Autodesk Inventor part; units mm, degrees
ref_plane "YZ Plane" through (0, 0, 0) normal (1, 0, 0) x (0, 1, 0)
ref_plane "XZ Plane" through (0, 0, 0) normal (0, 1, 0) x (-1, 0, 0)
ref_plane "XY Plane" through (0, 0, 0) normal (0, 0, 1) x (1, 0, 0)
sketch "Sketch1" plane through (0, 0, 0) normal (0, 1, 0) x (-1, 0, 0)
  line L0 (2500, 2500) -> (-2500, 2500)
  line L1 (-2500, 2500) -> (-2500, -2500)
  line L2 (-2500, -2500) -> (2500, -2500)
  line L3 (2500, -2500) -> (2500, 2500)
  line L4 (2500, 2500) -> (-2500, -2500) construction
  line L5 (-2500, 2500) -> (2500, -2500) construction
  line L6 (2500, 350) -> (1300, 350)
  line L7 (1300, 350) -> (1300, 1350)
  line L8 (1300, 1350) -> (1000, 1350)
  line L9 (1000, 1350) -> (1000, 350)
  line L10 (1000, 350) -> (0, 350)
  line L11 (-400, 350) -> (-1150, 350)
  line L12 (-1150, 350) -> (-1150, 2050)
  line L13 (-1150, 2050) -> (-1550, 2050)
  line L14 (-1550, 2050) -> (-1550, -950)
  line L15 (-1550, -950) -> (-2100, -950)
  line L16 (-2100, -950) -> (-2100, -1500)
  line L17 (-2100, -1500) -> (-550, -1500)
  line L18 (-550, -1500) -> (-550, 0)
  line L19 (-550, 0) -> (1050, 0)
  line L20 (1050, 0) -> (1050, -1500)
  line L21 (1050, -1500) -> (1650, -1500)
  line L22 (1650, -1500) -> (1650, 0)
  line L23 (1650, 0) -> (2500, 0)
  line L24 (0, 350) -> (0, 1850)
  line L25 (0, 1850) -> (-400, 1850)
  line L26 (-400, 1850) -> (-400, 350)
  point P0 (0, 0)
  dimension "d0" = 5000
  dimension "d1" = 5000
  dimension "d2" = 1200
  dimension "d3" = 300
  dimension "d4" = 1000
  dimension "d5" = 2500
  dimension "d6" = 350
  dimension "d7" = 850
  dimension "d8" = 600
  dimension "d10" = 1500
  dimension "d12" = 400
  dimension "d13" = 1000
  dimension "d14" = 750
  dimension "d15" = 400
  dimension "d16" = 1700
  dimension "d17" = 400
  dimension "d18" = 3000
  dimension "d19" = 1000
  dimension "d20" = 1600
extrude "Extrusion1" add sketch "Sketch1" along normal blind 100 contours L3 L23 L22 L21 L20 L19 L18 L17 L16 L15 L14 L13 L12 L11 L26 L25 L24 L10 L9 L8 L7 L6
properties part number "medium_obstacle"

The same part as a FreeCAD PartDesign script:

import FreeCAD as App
import Part
import Sketcher
from FreeCAD import Vector
Q = App.Units.Quantity


def add_polygon(sketch, points):
    """Adds a closed chain of lines whose ends are joined by coincident constraints."""
    first, n = sketch.GeometryCount, len(points)
    for a, b in zip(points, points[1:] + points[:1]):
        sketch.addGeometry(Part.LineSegment(App.Vector(*a, 0), App.Vector(*b, 0)), False)
    for i in range(n):
        sketch.addConstraint(Sketcher.Constraint("Coincident", first + i, 2, first + (i + 1) % n, 1))

doc = App.newDocument("Part")
params = doc.addObject("Spreadsheet::Sheet", "Params")
for row, (alias, value) in enumerate([
    ("sketch1_width", "1200 mm"),
    ("sketch1_width2", "300 mm"),
    ("sketch1_width3", "1000 mm"),
    ("sketch1_width4", "400 mm"),
    ("sketch1_width5", "750 mm"),
    ("pad1_length", "100 mm"),
], start=1):
    params.set(f"A{row}", alias)
    params.set(f"B{row}", "=" + value)
    params.setAlias(f"B{row}", alias)

body = doc.addObject("PartDesign::Body", "Body")

sketch1 = body.newObject("Sketcher::SketchObject", "Sketch")
sketch1.AttachmentSupport = (doc.getObject("XZ_Plane"), [""])
sketch1.MapMode = "FlatFace"
add_polygon(sketch1, [(-2500, 0), (-2500, 350), (-1300, 350), (-1300, 1350), (-1000, 1350), (-1000, 350), (0, 350), (0, 1850), (400, 1850), (400, 350), (1150, 350), (1150, 2050), (1550, 2050), (1550, -950), (2100, -950), (2100, -1500), (550, -1500), (550, 0), (-1050, 0), (-1050, -1500), (-1650, -1500), (-1650, 0)])
sketch1.addConstraint([
    Sketcher.Constraint("Vertical", 0),
    Sketcher.Constraint("Horizontal", 1),
    Sketcher.Constraint("Vertical", 2),
    Sketcher.Constraint("Horizontal", 3),
    Sketcher.Constraint("Vertical", 4),
    Sketcher.Constraint("Horizontal", 5),
    Sketcher.Constraint("Vertical", 6),
    Sketcher.Constraint("Horizontal", 7),
    Sketcher.Constraint("Vertical", 8),
    Sketcher.Constraint("Horizontal", 9),
    Sketcher.Constraint("Vertical", 10),
    Sketcher.Constraint("Horizontal", 11),
    Sketcher.Constraint("Vertical", 12),
    Sketcher.Constraint("Horizontal", 13),
    Sketcher.Constraint("Vertical", 14),
    Sketcher.Constraint("Horizontal", 15),
    Sketcher.Constraint("Vertical", 16),
    Sketcher.Constraint("Horizontal", 17),
    Sketcher.Constraint("Vertical", 18),
    Sketcher.Constraint("Horizontal", 19),
    Sketcher.Constraint("Vertical", 20),
    Sketcher.Constraint("Horizontal", 21),
    Sketcher.Constraint("PointOnObject", 5, 2, -2),
    Sketcher.Constraint("PointOnObject", 16, 2, -1),
    Sketcher.Constraint("PointOnObject", 20, 2, -1),
    Sketcher.Constraint("Horizontal", 1, 2, 4, 2),
    Sketcher.Constraint("Horizontal", 5, 2, 8, 2),
    Sketcher.Constraint("Horizontal", 15, 2, 18, 2),
    Sketcher.Constraint("Equal", 7, 11),
    Sketcher.Constraint("Equal", 5, 2),
    Sketcher.Constraint("Equal", 13, 14),
    Sketcher.Constraint("Equal", 8, 16),
    Sketcher.Constraint("DistanceX", 1, 1, 1, 2, Q("1200 mm")),
    Sketcher.Constraint("DistanceX", 3, 1, 3, 2, Q("300 mm")),
    Sketcher.Constraint("DistanceX", 5, 1, 5, 2, Q("1000 mm")),
    Sketcher.Constraint("DistanceX", 7, 1, 7, 2, Q("400 mm")),
    Sketcher.Constraint("DistanceX", 9, 1, 9, 2, Q("750 mm")),
    Sketcher.Constraint("DistanceX", 17, 2, 17, 1, Q("1600 mm")),
    Sketcher.Constraint("DistanceX", 19, 2, 19, 1, Q("600 mm")),
    Sketcher.Constraint("DistanceX", 21, 2, 21, 1, Q("850 mm")),
    Sketcher.Constraint("DistanceY", 0, 1, 0, 2, Q("350 mm")),
    Sketcher.Constraint("DistanceY", 6, 1, 6, 2, Q("1500 mm")),
    Sketcher.Constraint("DistanceY", 10, 1, 10, 2, Q("1700 mm")),
    Sketcher.Constraint("DistanceY", 12, 2, 12, 1, Q("3000 mm")),
])
sketch1.setExpression("Constraints[54]", "Params.sketch1_width")
sketch1.setExpression("Constraints[55]", "Params.sketch1_width2")
sketch1.setExpression("Constraints[56]", "Params.sketch1_width3")
sketch1.setExpression("Constraints[57]", "Params.sketch1_width4")
sketch1.setExpression("Constraints[58]", "Params.sketch1_width5")
pad1 = body.newObject("PartDesign::Pad", "Pad")
pad1.Profile = sketch1
pad1.setExpression("Length", "Params.pad1_length")
pad1.Reversed = True

doc.recompute()
